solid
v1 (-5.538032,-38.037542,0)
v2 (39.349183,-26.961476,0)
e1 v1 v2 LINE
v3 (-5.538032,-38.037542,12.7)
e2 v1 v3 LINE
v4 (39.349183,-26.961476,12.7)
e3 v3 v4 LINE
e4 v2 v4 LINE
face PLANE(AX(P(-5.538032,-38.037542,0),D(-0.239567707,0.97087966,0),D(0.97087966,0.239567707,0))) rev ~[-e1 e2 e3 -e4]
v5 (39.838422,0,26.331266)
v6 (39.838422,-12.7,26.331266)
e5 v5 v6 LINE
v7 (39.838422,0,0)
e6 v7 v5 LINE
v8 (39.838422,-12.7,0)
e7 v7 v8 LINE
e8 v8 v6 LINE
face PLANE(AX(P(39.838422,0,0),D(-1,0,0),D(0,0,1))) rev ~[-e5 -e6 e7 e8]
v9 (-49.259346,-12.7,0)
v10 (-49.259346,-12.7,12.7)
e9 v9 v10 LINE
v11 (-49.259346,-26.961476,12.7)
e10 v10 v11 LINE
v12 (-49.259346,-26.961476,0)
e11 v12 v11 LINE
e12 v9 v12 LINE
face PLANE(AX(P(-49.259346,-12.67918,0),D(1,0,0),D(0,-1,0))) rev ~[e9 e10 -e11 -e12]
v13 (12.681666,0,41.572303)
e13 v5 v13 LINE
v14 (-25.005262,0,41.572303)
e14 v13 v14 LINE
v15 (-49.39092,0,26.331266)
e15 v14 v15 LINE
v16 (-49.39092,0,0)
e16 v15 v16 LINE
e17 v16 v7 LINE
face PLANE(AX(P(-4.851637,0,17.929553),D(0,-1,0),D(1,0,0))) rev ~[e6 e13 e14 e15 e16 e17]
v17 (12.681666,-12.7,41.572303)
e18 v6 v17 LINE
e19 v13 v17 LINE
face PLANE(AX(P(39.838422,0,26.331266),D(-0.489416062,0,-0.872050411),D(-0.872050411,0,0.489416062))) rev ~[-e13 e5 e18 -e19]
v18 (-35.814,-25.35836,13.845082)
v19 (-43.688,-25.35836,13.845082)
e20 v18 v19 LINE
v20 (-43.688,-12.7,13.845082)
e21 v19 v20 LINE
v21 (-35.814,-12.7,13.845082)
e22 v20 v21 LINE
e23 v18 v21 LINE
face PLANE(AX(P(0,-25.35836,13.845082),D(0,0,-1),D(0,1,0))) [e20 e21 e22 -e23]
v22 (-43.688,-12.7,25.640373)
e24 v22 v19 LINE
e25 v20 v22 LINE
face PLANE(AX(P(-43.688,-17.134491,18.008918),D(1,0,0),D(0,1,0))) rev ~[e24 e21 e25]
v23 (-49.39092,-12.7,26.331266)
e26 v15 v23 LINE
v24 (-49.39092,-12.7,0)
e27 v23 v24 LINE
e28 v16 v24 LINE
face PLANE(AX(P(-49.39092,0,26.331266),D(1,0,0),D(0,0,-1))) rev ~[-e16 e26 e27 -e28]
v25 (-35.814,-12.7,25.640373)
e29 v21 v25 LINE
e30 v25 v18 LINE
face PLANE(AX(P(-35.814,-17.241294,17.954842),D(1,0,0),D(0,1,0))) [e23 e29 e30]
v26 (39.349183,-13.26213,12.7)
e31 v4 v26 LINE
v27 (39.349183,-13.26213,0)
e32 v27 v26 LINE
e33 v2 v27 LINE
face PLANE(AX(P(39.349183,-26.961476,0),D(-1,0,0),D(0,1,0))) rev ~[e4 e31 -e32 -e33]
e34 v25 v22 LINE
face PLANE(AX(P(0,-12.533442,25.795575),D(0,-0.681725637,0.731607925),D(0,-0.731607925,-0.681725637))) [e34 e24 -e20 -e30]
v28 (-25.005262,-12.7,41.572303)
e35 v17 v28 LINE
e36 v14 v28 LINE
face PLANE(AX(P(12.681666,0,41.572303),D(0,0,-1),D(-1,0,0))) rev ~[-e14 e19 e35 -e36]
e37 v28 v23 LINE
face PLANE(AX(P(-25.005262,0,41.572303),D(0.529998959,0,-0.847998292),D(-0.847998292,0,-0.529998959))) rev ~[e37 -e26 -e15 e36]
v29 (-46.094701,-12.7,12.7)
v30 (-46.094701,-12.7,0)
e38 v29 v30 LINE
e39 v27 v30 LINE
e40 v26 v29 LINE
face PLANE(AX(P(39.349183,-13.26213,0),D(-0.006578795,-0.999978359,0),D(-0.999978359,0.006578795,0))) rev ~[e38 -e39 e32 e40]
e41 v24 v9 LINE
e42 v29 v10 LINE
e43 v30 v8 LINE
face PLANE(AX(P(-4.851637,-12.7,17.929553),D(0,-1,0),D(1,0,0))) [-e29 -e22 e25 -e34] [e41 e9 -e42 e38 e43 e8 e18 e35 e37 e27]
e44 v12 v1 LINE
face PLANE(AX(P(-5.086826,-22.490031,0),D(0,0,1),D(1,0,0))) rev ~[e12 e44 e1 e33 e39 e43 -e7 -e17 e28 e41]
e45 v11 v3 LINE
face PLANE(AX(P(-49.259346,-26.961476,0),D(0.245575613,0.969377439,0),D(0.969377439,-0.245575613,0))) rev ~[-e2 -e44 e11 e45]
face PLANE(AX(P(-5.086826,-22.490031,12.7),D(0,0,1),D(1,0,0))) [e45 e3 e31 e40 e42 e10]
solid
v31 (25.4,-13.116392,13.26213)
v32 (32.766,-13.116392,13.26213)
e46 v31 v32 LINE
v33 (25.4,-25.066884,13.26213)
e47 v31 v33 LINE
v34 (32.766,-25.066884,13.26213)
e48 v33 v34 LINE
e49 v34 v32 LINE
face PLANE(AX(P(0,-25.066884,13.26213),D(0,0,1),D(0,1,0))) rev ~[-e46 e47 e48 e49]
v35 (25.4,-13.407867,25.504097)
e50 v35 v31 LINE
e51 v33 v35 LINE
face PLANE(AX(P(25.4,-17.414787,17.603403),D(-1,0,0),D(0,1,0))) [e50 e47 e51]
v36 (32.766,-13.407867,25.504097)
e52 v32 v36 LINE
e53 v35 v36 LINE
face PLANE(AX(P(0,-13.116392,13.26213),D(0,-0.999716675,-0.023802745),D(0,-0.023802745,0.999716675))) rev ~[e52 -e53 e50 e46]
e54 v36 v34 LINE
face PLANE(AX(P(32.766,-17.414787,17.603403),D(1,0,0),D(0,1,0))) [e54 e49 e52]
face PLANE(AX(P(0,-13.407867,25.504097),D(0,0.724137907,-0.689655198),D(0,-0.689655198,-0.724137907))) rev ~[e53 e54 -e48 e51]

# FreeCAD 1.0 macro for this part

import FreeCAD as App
import Part
import Sketcher

V = App.Vector
Q = App.Units.Quantity

doc = App.newDocument("Part")
body = doc.addObject("PartDesign::Body", "Body")

# Sketch on XZ plane
sketch1 = body.newObject("Sketcher::SketchObject", "Sketch")
sketch1.AttachmentSupport = (doc.getObject("XZ_Plane"), [""])
sketch1.MapMode = "FlatFace"
sketch1.addGeometry(Part.LineSegment(V(12.681666, 41.572303, 0), V(-25.005262, 41.572303, 0)), False)
sketch1.addGeometry(Part.LineSegment(V(-25.005262, 41.572303, 0), V(-49.39092, 26.331266, 0)), False)
sketch1.addGeometry(Part.LineSegment(V(-49.39092, 26.331266, 0), V(-49.39092, 0, 0)), False)
sketch1.addGeometry(Part.LineSegment(V(-49.39092, 0, 0), V(39.838422, 0, 0)), False)
sketch1.addGeometry(Part.LineSegment(V(39.838422, 0, 0), V(39.838422, 26.331266, 0)), False)
sketch1.addGeometry(Part.LineSegment(V(39.838422, 26.331266, 0), V(12.681666, 41.572303, 0)), False)
sketch1.addConstraint(Sketcher.Constraint("Coincident", 0, 2, 1, 1))
sketch1.addConstraint(Sketcher.Constraint("Coincident", 1, 2, 2, 1))
sketch1.addConstraint(Sketcher.Constraint("Coincident", 2, 2, 3, 1))
sketch1.addConstraint(Sketcher.Constraint("Coincident", 3, 2, 4, 1))
sketch1.addConstraint(Sketcher.Constraint("Coincident", 4, 2, 5, 1))
sketch1.addConstraint(Sketcher.Constraint("Coincident", 5, 2, 0, 1))
sketch1.addConstraint(Sketcher.Constraint("Horizontal", 0))
sketch1.addConstraint(Sketcher.Constraint("Vertical", 2))
sketch1.addConstraint(Sketcher.Constraint("Horizontal", 3))
sketch1.addConstraint(Sketcher.Constraint("Vertical", 4))
sketch1.addConstraint(Sketcher.Constraint("PointOnObject", 2, 2, -1))
sketch1.addConstraint(Sketcher.Constraint("Horizontal", 1, 2, 4, 2))
sketch1.addConstraint(Sketcher.Constraint("Distance", 1, Q("28.75673 mm")))
sketch1.addConstraint(Sketcher.Constraint("Distance", 5, Q("31.141269 mm")))
sketch1.addConstraint(Sketcher.Constraint("DistanceX", 0, 2, 0, 1, Q("37.686928 mm")))
sketch1.addConstraint(Sketcher.Constraint("DistanceX", 3, 1, 3, 2, Q("89.229342 mm")))
sketch1.addConstraint(Sketcher.Constraint("DistanceY", 2, 2, 2, 1, Q("26.331266 mm")))
sketch1.addConstraint(Sketcher.Constraint("DistanceX", 0, 2, -1, 1, Q("25.005262 mm")))
pad1 = body.newObject("PartDesign::Pad", "Pad")
pad1.Profile = sketch1
pad1.Length = Q("0.5 in")

# Sketch on XY plane
sketch2 = body.newObject("Sketcher::SketchObject", "Sketch001")
sketch2.AttachmentSupport = (doc.getObject("XY_Plane"), [""])
sketch2.MapMode = "FlatFace"
sketch2.addGeometry(Part.LineSegment(V(39.349183, -13.26213, 0), V(-49.259346, -12.67918, 0)), False)
sketch2.addGeometry(Part.LineSegment(V(-49.259346, -12.67918, 0), V(-49.259346, -26.961476, 0)), False)
sketch2.addGeometry(Part.LineSegment(V(-49.259346, -26.961476, 0), V(-5.538032, -38.037542, 0)), False)
sketch2.addGeometry(Part.LineSegment(V(-5.538032, -38.037542, 0), V(39.349183, -26.961476, 0)), False)
sketch2.addGeometry(Part.LineSegment(V(39.349183, -26.961476, 0), V(39.349183, -13.26213, 0)), False)
sketch2.addConstraint(Sketcher.Constraint("Coincident", 0, 2, 1, 1))
sketch2.addConstraint(Sketcher.Constraint("Coincident", 1, 2, 2, 1))
sketch2.addConstraint(Sketcher.Constraint("Coincident", 2, 2, 3, 1))
sketch2.addConstraint(Sketcher.Constraint("Coincident", 3, 2, 4, 1))
sketch2.addConstraint(Sketcher.Constraint("Coincident", 4, 2, 0, 1))
sketch2.addConstraint(Sketcher.Constraint("Vertical", 1))
sketch2.addConstraint(Sketcher.Constraint("Vertical", 4))
sketch2.addConstraint(Sketcher.Constraint("Horizontal", 1, 2, 3, 2))
sketch2.addConstraint(Sketcher.Constraint("Distance", 3, Q("46.233552 mm")))
sketch2.addConstraint(Sketcher.Constraint("DistanceY", 1, 2, 1, 1, Q("14.282296 mm")))
sketch2.addConstraint(Sketcher.Constraint("DistanceY", 4, 1, 4, 2, Q("13.699346 mm")))
sketch2.addConstraint(Sketcher.Constraint("DistanceY", 0, 2, -1, 1, Q("12.67918 mm")))
sketch2.addConstraint(Sketcher.Constraint("DistanceY", 2, 2, 0, 2, Q("25.358362 mm")))
sketch2.addConstraint(Sketcher.Constraint("DistanceX", 1, 2, 3, 2, Q("88.608529 mm")))
sketch2.addConstraint(Sketcher.Constraint("DistanceX", 0, 2, -1, 1, Q("49.259346 mm")))
pad2 = body.newObject("PartDesign::Pad", "Pad001")
pad2.Profile = sketch2
pad2.Length = Q("0.5 in")

# Sketch on YZ plane
sketch3 = body.newObject("Sketcher::SketchObject", "Sketch002")
sketch3.AttachmentSupport = (doc.getObject("YZ_Plane"), [""])
sketch3.MapMode = "FlatFace"
sketch3.addGeometry(Part.LineSegment(V(-12.533442, 25.795575, 0), V(-25.35836, 13.845082, 0)), False)
sketch3.addGeometry(Part.LineSegment(V(-25.35836, 13.845082, 0), V(-12.533442, 13.845082, 0)), False)
sketch3.addGeometry(Part.LineSegment(V(-12.533442, 13.845082, 0), V(-12.533442, 25.795575, 0)), False)
sketch3.addConstraint(Sketcher.Constraint("Coincident", 0, 2, 1, 1))
sketch3.addConstraint(Sketcher.Constraint("Coincident", 1, 2, 2, 1))
sketch3.addConstraint(Sketcher.Constraint("Coincident", 2, 2, 0, 1))
sketch3.addConstraint(Sketcher.Constraint("Horizontal", 1))
sketch3.addConstraint(Sketcher.Constraint("Vertical", 2))
sketch3.addConstraint(Sketcher.Constraint("Distance", 0, Q("17.529769 mm")))
sketch3.addConstraint(Sketcher.Constraint("DistanceX", 1, 1, 1, 2, Q("12.824918 mm")))
sketch3.addConstraint(Sketcher.Constraint("DistanceX", 0, 2, -1, 1, Q("25.35836 mm")))
sketch3.addConstraint(Sketcher.Constraint("DistanceY", -1, 1, 0, 2, Q("13.845082 mm")))
pad3 = body.newObject("PartDesign::Pad", "Pad002")
pad3.Profile = sketch3
pad3.Length = Q("1.72 in")
pad3.Reversed = True

# Sketch on YZ plane
sketch4 = body.newObject("Sketcher::SketchObject", "Sketch003")
sketch4.AttachmentSupport = (doc.getObject("YZ_Plane"), [""])
sketch4.MapMode = "FlatFace"
sketch4.addGeometry(Part.LineSegment(V(-12.7, 13.845082, 0), V(-12.7, 25.640373, 0)), False)
sketch4.addGeometry(Part.LineSegment(V(-12.7, 25.640373, 0), V(-25.35836, 13.845082, 0)), False)
sketch4.addGeometry(Part.LineSegment(V(-25.35836, 13.845082, 0), V(-12.7, 13.845082, 0)), False)
sketch4.addConstraint(Sketcher.Constraint("Coincident", 0, 2, 1, 1))
sketch4.addConstraint(Sketcher.Constraint("Coincident", 1, 2, 2, 1))
sketch4.addConstraint(Sketcher.Constraint("Coincident", 2, 2, 0, 1))
sketch4.addConstraint(Sketcher.Constraint("Vertical", 0))
sketch4.addConstraint(Sketcher.Constraint("Horizontal", 2))
sketch4.addConstraint(Sketcher.Constraint("DistanceX", 0, 2, -1, 1, Q("0.5 in")))
sketch4.addConstraint(Sketcher.Constraint("DistanceX", 2, 1, 2, 2, Q("12.65836 mm")))
sketch4.addConstraint(Sketcher.Constraint("DistanceY", 0, 1, 0, 2, Q("11.795291 mm")))
sketch4.addConstraint(Sketcher.Constraint("DistanceY", -1, 1, 0, 2, Q("25.640373 mm")))
pocket1 = body.newObject("PartDesign::Pocket", "Pocket")
pocket1.Profile = sketch4
pocket1.Length = Q("1.41 in")
body2 = doc.addObject("PartDesign::Body", "Body001")

# Sketch on YZ plane
sketch5 = body2.newObject("Sketcher::SketchObject", "Sketch004")
sketch5.AttachmentSupport = (doc.getObject("YZ_Plane001"), [""])
sketch5.MapMode = "FlatFace"
sketch5.addGeometry(Part.LineSegment(V(-25.066884, 13.26213, 0), V(-13.116392, 13.26213, 0)), False)
sketch5.addGeometry(Part.LineSegment(V(-13.116392, 13.26213, 0), V(-13.407867, 25.504097, 0)), False)
sketch5.addGeometry(Part.LineSegment(V(-13.407867, 25.504097, 0), V(-25.066884, 13.26213, 0)), False)
sketch5.addConstraint(Sketcher.Constraint("Coincident", 0, 2, 1, 1))
sketch5.addConstraint(Sketcher.Constraint("Coincident", 1, 2, 2, 1))
sketch5.addConstraint(Sketcher.Constraint("Coincident", 2, 2, 0, 1))
sketch5.addConstraint(Sketcher.Constraint("Horizontal", 0))
sketch5.addConstraint(Sketcher.Constraint("DistanceX", 0, 1, 0, 2, Q("11.950492 mm")))
sketch5.addConstraint(Sketcher.Constraint("DistanceX", 0, 2, -1, 1, Q("13.116392 mm")))
sketch5.addConstraint(Sketcher.Constraint("DistanceY", -1, 1, 0, 2, Q("13.26213 mm")))
sketch5.addConstraint(Sketcher.Constraint("Distance", 1, Q("12.245436 mm")))
sketch5.addConstraint(Sketcher.Constraint("Distance", 2, Q("16.905574 mm")))
pad4 = body2.newObject("PartDesign::Pad", "Pad003")
pad4.Profile = sketch5
pad4.Length = Q("1.29 in")

# Sketch on YZ plane
sketch6 = body2.newObject("Sketcher::SketchObject", "Sketch005")
sketch6.AttachmentSupport = (doc.getObject("YZ_Plane001"), [""])
sketch6.MapMode = "FlatFace"
sketch6.addGeometry(Part.LineSegment(V(-13.116392, 13.26213, 0), V(-25.066884, 13.26213, 0)), False)
sketch6.addGeometry(Part.LineSegment(V(-25.066884, 13.26213, 0), V(-13.407867, 25.504097, 0)), False)
sketch6.addGeometry(Part.LineSegment(V(-13.407867, 25.504097, 0), V(-13.116392, 13.26213, 0)), False)
sketch6.addConstraint(Sketcher.Constraint("Coincident", 0, 2, 1, 1))
sketch6.addConstraint(Sketcher.Constraint("Coincident", 1, 2, 2, 1))
sketch6.addConstraint(Sketcher.Constraint("Coincident", 2, 2, 0, 1))
sketch6.addConstraint(Sketcher.Constraint("Horizontal", 0))
sketch6.addConstraint(Sketcher.Constraint("DistanceX", 0, 2, 0, 1, Q("11.950492 mm")))
sketch6.addConstraint(Sketcher.Constraint("DistanceY", -1, 1, 0, 2, Q("13.26213 mm")))
sketch6.addConstraint(Sketcher.Constraint("DistanceX", 2, 2, -1, 1, Q("13.116392 mm")))
sketch6.addConstraint(Sketcher.Constraint("Distance", 1, Q("16.905574 mm")))
sketch6.addConstraint(Sketcher.Constraint("Distance", 2, Q("12.245436 mm")))
pocket2 = body2.newObject("PartDesign::Pocket", "Pocket001")
pocket2.Profile = sketch6
pocket2.Length = Q("1 in")
pocket2.Reversed = True

doc.recompute()
